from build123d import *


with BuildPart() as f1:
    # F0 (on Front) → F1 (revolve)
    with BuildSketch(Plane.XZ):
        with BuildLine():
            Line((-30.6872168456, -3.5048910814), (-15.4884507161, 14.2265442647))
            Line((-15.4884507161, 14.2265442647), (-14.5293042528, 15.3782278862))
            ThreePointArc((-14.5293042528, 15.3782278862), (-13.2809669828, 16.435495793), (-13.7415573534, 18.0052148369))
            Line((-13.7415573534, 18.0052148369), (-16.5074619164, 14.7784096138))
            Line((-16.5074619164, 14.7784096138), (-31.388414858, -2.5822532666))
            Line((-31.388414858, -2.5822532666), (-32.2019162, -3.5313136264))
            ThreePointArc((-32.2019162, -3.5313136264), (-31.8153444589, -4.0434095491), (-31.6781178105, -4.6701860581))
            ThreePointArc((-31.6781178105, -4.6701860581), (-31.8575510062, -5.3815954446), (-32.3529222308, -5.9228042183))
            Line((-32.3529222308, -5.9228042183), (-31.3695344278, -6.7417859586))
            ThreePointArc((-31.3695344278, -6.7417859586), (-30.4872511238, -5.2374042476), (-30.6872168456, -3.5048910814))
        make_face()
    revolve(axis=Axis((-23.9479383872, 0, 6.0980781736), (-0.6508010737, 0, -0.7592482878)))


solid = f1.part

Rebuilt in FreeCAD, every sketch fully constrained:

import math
import FreeCAD as App
import Part
import Sketcher
from FreeCAD import Vector

doc = App.newDocument("Part")
body = doc.addObject("PartDesign::Body", "Body")

# Sketch on XZ plane
sketch1 = body.newObject("Sketcher::SketchObject", "Sketch")
sketch1.AttachmentSupport = (doc.getObject("XZ_Plane"), [""])
sketch1.MapMode = "FlatFace"
sketch1.addGeometry([
    Part.LineSegment(Vector(-30.7, -3.5, 0), Vector(-15.5, 14.2, 0)),  # 0
    Part.LineSegment(Vector(-15.5, 14.2, 0), Vector(-14.5, 15.4, 0)),  # 1
    Part.ArcOfCircle(Part.Circle(Vector(-14.7, 16.9, 0), Vector(0, 0, 1), 1.5), math.radians(-83), math.radians(49)),  # 2
    Part.LineSegment(Vector(-13.7, 18, 0), Vector(-16.5, 14.8, 0)),  # 3
    Part.LineSegment(Vector(-16.5, 14.8, 0), Vector(-31.4, -2.6, 0)),  # 4
    Part.LineSegment(Vector(-31.4, -2.6, 0), Vector(-32.2, -3.5, 0)),  # 5
    Part.ArcOfCircle(Part.Circle(Vector(-33.2, -4.7, 0), Vector(0, 0, 1), 1.5), math.radians(0), math.radians(49)),  # 6
    Part.ArcOfCircle(Part.Circle(Vector(-33.2, -4.7, 0), Vector(0, 0, 1), 1.5), math.radians(-57), math.radians(0)),  # 7
    Part.LineSegment(Vector(-32.4, -5.9, 0), Vector(-31.4, -6.7, 0)),  # 8
    Part.ArcOfCircle(Part.Circle(Vector(-33.2, -4.7, 0), Vector(0, 0, 1), 2.8), math.radians(-49), math.radians(25)),  # 9
], False)
sketch1.addGeometry(Part.LineSegment(Vector(-13.7, 18, 0), Vector(-33.4, -5, 0)), True)  # axis
sketch1.addConstraint([
    Sketcher.Constraint("Coincident", 0, 2, 1, 1),
    Sketcher.Constraint("Coincident", 1, 2, 2, 1),
    Sketcher.Constraint("Coincident", 2, 2, 3, 1),
    Sketcher.Constraint("Coincident", 3, 2, 4, 1),
    Sketcher.Constraint("Coincident", 4, 2, 5, 1),
    Sketcher.Constraint("Coincident", 5, 2, 6, 2),
    Sketcher.Constraint("Tangent", 6, 1, 7, 2),
    Sketcher.Constraint("Coincident", 7, 1, 8, 1),
    Sketcher.Constraint("Coincident", 8, 2, 9, 1),
    Sketcher.Constraint("Coincident", 9, 2, 0, 1),
    Sketcher.Constraint("Coincident", 9, 3, 6, 3),
    Sketcher.Constraint("Coincident", 10, 1, 2, 2),
    Sketcher.Constraint("Equal", 2, 6),
    Sketcher.Constraint("Equal", 6, 7),
    Sketcher.Constraint("Parallel", 0, 3),
    Sketcher.Constraint("Parallel", 3, 4),
    Sketcher.Constraint("Parallel", 4, 5),
    Sketcher.Constraint("Parallel", 5, 10),
    Sketcher.Constraint("Horizontal", 9, 3, 6, 1),
    Sketcher.Constraint("Radius", 2, 1.5),
    Sketcher.Constraint("Radius", 9, 2.75),
    Sketcher.Constraint("Distance", 3, 4.25),
    Sketcher.Constraint("Distance", 5, 1.25),
    Sketcher.Constraint("DistanceY", 0, 2, 2, 3, 2.639798),
    Sketcher.Constraint("DistanceX", 2, 3, 2, 2, 0.976202),
    Sketcher.Constraint("DistanceY", 6, 3, 2, 2, 22.675401),
    Sketcher.Constraint("DistanceX", 5, 2, 4, 2, 0.813501),
    Sketcher.Constraint("DistanceX", 6, 3, 5, 2, 0.976202),
    Sketcher.Constraint("DistanceY", 8, 2, 6, 1, 2.0716),
    Sketcher.Constraint("DistanceX", 4, 2, 9, 2, 0.701198),
    Sketcher.Constraint("Distance", 1, 1.498779),
    Sketcher.Constraint("Distance", 8, 1.279759),
    Sketcher.Constraint("DistanceX", 2, 3, -1, 1, 14.717759),
    Sketcher.Constraint("DistanceY", -1, 1, 3, 2, 14.77841),
    Sketcher.Constraint("DistanceX", 10, 2, 7, 3, 0.269438),
])
revolution = body.newObject("PartDesign::Revolution", "Revolution")
revolution.Profile = sketch1
revolution.ReferenceAxis = (sketch1, ["Axis0"])
revolution.Angle = 360

doc.recompute()
